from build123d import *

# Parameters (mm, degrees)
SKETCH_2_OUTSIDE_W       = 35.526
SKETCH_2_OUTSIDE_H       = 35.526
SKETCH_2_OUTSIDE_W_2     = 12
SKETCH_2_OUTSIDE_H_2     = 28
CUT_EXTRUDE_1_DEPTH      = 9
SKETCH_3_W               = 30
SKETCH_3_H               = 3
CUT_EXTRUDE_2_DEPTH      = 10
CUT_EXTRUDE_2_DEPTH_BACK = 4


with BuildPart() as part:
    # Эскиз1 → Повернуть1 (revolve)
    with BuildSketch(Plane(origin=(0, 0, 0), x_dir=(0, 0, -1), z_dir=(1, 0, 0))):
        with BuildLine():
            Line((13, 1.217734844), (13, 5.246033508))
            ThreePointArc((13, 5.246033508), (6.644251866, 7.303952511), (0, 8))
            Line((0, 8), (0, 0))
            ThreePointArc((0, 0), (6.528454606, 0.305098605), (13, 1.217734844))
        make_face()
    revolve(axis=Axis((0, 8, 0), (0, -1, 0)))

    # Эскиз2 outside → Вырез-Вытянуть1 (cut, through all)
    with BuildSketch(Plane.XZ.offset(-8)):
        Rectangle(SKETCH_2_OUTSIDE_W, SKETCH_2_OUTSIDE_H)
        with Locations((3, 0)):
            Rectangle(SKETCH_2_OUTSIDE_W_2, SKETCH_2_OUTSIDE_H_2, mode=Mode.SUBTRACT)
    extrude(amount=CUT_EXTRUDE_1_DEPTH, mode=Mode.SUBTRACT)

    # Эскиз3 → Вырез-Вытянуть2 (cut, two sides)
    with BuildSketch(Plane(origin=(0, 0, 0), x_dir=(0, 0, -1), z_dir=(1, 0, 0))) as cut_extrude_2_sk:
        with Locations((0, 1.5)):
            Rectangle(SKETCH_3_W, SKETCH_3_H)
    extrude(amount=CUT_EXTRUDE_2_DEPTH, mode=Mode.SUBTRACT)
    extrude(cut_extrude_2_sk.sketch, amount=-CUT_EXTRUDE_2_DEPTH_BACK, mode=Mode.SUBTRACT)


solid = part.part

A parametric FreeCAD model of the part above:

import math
import FreeCAD as App
import Part
import Sketcher
from FreeCAD import Vector


def add_polygon(sketch, points):
    """Adds a closed chain of lines whose ends are joined by coincident constraints."""
    first, n = sketch.GeometryCount, len(points)
    for a, b in zip(points, points[1:] + points[:1]):
        sketch.addGeometry(Part.LineSegment(App.Vector(*a, 0), App.Vector(*b, 0)), False)
    for i in range(n):
        sketch.addConstraint(Sketcher.Constraint("Coincident", first + i, 2, first + (i + 1) % n, 1))

doc = App.newDocument("Part")
body = doc.addObject("PartDesign::Body", "Body")

sketch1 = doc.addObject("Sketcher::SketchObject", "Sketch")
body.addObject(sketch1)
sketch1.AttachmentSupport = (doc.YZ_Plane, [""])
sketch1.MapMode = "FlatFace"
sketch1.addGeometry([
    Part.LineSegment(Vector(1.217735, -13, 0), Vector(5.246034, -13, 0)),
    Part.ArcOfCircle(Part.Circle(Vector(-24.06, 0, 0), Vector(0, 0, 1), 32.06), math.radians(-23.921818), math.radians(0)),
    Part.LineSegment(Vector(8, 0, 0), Vector(0, 0, 0)),
    Part.ArcOfCircle(Part.Circle(Vector(70, 0, 0), Vector(0, 0, 1), 70), math.radians(180), math.radians(190.70278)),
], False)
sketch1.addConstraint([
    Sketcher.Constraint("Coincident", 0, 2, 1, 1),
    Sketcher.Constraint("Coincident", 1, 2, 2, 1),
    Sketcher.Constraint("Coincident", 2, 2, 3, 1),
    Sketcher.Constraint("Coincident", 3, 2, 0, 1),
    Sketcher.Constraint("Horizontal", 0),
    Sketcher.Constraint("Horizontal", 2),
    Sketcher.Constraint("Coincident", 2, 2, -1, 1),
    Sketcher.Constraint("PointOnObject", 1, 3, -1),
    Sketcher.Constraint("PointOnObject", 3, 3, -1),
    Sketcher.Constraint("Radius", 3, 70.0),
    Sketcher.Constraint("DistanceX", 2, 2, 2, 1, 8.0),
    Sketcher.Constraint("Radius", 1, 32.06),
    Sketcher.Constraint("DistanceY", 0, 2, -1, 1, 13.0),
])
revolution = doc.addObject("PartDesign::Revolution", "Revolution")
body.addObject(revolution)
revolution.Profile = sketch1
revolution.ReferenceAxis = (sketch1, ["H_Axis"])
revolution.Angle = 360

sketch2 = doc.addObject("Sketcher::SketchObject", "Sketch001")
body.addObject(sketch2)
sketch2.AttachmentSupport = (doc.XZ_Plane, [""])
sketch2.MapMode = "FlatFace"
sketch2.AttachmentOffset = App.Placement(Vector(0, 0, -8), App.Rotation())
add_polygon(sketch2, [(-17.763, 17.763), (-17.763, -17.763), (17.763, -17.763), (17.763, 17.763)])
add_polygon(sketch2, [(9, -14), (-3, -14), (-3, 14), (9, 14)])
sketch2.addConstraint([
    Sketcher.Constraint("Vertical", 0),
    Sketcher.Constraint("Horizontal", 1),
    Sketcher.Constraint("Vertical", 2),
    Sketcher.Constraint("Horizontal", 3),
    Sketcher.Constraint("Horizontal", 4),
    Sketcher.Constraint("Vertical", 5),
    Sketcher.Constraint("Horizontal", 6),
    Sketcher.Constraint("Vertical", 7),
    Sketcher.Constraint("Symmetric", 0, 2, 2, 2, -1, 1),
    Sketcher.Constraint("Equal", 3, 0),
    Sketcher.Constraint("DistanceX", 4, 2, 4, 1, 12.0),
    Sketcher.Constraint("DistanceY", 5, 1, 5, 2, 28.0),
    Sketcher.Constraint("DistanceX", 4, 2, -1, 1, 3.0),
    Sketcher.Constraint("DistanceY", 4, 2, -1, 1, 14.0),
    Sketcher.Constraint("DistanceX", 1, 1, 1, 2, 35.526),
])
pocket1 = doc.addObject("PartDesign::Pocket", "Pocket")
body.addObject(pocket1)
pocket1.Profile = sketch2
pocket1.Type = "ThroughAll"
pocket1.Reversed = True

sketch3 = doc.addObject("Sketcher::SketchObject", "Sketch002")
body.addObject(sketch3)
sketch3.AttachmentSupport = (doc.YZ_Plane, [""])
sketch3.MapMode = "FlatFace"
add_polygon(sketch3, [(3, 15), (0, 15), (0, -15), (3, -15)])
sketch3.addConstraint([
    Sketcher.Constraint("Horizontal", 0),
    Sketcher.Constraint("Vertical", 1),
    Sketcher.Constraint("Horizontal", 2),
    Sketcher.Constraint("Vertical", 3),
    Sketcher.Constraint("Symmetric", 0, 2, 1, 2, -1, 1),
    Sketcher.Constraint("DistanceX", 0, 2, 0, 1, 3.0),
    Sketcher.Constraint("DistanceY", 1, 2, 1, 1, 30.0),
])
pocket2 = doc.addObject("PartDesign::Pocket", "Pocket001")
body.addObject(pocket2)
pocket2.Profile = sketch3
pocket2.Type = "ThroughAll"
pocket2.Midplane = True

doc.recompute()
